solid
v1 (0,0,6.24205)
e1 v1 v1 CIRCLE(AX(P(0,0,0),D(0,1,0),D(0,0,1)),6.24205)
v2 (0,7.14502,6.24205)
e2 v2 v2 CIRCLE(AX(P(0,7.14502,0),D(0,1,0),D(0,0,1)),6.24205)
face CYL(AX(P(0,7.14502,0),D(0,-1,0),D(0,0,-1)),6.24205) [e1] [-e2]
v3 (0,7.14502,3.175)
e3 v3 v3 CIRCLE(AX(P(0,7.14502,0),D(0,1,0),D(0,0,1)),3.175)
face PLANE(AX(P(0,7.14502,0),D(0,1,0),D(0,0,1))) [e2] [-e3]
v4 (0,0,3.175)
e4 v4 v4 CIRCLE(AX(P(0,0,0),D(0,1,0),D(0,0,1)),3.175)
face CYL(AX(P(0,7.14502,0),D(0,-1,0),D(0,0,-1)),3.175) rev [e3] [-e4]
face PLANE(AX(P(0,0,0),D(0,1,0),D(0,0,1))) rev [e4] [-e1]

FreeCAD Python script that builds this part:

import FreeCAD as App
import Part
import Sketcher
from FreeCAD import Vector
Q = App.Units.Quantity

doc = App.newDocument("Part")
body = doc.addObject("PartDesign::Body", "Body")

# Sketch on XZ plane
sketch1 = body.newObject("Sketcher::SketchObject", "Sketch")
sketch1.AttachmentSupport = (doc.getObject("XZ_Plane"), [""])
sketch1.MapMode = "FlatFace"
sketch1.addGeometry(Part.Circle(Vector(0, 0, 0), Vector(0, 0, 1), 6), False)
sketch1.addConstraint(Sketcher.Constraint("Coincident", 0, 3, -1, 1))
sketch1.addConstraint(Sketcher.Constraint("Diameter", 0, Q("0.4915 in")))
pad1 = body.newObject("PartDesign::Pad", "Pad")
pad1.Profile = sketch1
pad1.Length = Q("0.2813 in")
pad1.Reversed = True

# Sketch on XZ plane
sketch2 = body.newObject("Sketcher::SketchObject", "Sketch001")
sketch2.AttachmentSupport = (doc.getObject("XZ_Plane"), [""])
sketch2.MapMode = "FlatFace"
sketch2.addGeometry(Part.Circle(Vector(0, 0, 0), Vector(0, 0, 1), 3.2), False)
sketch2.addConstraint(Sketcher.Constraint("Coincident", 0, 3, -1, 1))
sketch2.addConstraint(Sketcher.Constraint("Diameter", 0, Q("0.25 in")))
pocket1 = body.newObject("PartDesign::Pocket", "Pocket")
pocket1.Profile = sketch2
pocket1.Type = "ThroughAll"

doc.recompute()
